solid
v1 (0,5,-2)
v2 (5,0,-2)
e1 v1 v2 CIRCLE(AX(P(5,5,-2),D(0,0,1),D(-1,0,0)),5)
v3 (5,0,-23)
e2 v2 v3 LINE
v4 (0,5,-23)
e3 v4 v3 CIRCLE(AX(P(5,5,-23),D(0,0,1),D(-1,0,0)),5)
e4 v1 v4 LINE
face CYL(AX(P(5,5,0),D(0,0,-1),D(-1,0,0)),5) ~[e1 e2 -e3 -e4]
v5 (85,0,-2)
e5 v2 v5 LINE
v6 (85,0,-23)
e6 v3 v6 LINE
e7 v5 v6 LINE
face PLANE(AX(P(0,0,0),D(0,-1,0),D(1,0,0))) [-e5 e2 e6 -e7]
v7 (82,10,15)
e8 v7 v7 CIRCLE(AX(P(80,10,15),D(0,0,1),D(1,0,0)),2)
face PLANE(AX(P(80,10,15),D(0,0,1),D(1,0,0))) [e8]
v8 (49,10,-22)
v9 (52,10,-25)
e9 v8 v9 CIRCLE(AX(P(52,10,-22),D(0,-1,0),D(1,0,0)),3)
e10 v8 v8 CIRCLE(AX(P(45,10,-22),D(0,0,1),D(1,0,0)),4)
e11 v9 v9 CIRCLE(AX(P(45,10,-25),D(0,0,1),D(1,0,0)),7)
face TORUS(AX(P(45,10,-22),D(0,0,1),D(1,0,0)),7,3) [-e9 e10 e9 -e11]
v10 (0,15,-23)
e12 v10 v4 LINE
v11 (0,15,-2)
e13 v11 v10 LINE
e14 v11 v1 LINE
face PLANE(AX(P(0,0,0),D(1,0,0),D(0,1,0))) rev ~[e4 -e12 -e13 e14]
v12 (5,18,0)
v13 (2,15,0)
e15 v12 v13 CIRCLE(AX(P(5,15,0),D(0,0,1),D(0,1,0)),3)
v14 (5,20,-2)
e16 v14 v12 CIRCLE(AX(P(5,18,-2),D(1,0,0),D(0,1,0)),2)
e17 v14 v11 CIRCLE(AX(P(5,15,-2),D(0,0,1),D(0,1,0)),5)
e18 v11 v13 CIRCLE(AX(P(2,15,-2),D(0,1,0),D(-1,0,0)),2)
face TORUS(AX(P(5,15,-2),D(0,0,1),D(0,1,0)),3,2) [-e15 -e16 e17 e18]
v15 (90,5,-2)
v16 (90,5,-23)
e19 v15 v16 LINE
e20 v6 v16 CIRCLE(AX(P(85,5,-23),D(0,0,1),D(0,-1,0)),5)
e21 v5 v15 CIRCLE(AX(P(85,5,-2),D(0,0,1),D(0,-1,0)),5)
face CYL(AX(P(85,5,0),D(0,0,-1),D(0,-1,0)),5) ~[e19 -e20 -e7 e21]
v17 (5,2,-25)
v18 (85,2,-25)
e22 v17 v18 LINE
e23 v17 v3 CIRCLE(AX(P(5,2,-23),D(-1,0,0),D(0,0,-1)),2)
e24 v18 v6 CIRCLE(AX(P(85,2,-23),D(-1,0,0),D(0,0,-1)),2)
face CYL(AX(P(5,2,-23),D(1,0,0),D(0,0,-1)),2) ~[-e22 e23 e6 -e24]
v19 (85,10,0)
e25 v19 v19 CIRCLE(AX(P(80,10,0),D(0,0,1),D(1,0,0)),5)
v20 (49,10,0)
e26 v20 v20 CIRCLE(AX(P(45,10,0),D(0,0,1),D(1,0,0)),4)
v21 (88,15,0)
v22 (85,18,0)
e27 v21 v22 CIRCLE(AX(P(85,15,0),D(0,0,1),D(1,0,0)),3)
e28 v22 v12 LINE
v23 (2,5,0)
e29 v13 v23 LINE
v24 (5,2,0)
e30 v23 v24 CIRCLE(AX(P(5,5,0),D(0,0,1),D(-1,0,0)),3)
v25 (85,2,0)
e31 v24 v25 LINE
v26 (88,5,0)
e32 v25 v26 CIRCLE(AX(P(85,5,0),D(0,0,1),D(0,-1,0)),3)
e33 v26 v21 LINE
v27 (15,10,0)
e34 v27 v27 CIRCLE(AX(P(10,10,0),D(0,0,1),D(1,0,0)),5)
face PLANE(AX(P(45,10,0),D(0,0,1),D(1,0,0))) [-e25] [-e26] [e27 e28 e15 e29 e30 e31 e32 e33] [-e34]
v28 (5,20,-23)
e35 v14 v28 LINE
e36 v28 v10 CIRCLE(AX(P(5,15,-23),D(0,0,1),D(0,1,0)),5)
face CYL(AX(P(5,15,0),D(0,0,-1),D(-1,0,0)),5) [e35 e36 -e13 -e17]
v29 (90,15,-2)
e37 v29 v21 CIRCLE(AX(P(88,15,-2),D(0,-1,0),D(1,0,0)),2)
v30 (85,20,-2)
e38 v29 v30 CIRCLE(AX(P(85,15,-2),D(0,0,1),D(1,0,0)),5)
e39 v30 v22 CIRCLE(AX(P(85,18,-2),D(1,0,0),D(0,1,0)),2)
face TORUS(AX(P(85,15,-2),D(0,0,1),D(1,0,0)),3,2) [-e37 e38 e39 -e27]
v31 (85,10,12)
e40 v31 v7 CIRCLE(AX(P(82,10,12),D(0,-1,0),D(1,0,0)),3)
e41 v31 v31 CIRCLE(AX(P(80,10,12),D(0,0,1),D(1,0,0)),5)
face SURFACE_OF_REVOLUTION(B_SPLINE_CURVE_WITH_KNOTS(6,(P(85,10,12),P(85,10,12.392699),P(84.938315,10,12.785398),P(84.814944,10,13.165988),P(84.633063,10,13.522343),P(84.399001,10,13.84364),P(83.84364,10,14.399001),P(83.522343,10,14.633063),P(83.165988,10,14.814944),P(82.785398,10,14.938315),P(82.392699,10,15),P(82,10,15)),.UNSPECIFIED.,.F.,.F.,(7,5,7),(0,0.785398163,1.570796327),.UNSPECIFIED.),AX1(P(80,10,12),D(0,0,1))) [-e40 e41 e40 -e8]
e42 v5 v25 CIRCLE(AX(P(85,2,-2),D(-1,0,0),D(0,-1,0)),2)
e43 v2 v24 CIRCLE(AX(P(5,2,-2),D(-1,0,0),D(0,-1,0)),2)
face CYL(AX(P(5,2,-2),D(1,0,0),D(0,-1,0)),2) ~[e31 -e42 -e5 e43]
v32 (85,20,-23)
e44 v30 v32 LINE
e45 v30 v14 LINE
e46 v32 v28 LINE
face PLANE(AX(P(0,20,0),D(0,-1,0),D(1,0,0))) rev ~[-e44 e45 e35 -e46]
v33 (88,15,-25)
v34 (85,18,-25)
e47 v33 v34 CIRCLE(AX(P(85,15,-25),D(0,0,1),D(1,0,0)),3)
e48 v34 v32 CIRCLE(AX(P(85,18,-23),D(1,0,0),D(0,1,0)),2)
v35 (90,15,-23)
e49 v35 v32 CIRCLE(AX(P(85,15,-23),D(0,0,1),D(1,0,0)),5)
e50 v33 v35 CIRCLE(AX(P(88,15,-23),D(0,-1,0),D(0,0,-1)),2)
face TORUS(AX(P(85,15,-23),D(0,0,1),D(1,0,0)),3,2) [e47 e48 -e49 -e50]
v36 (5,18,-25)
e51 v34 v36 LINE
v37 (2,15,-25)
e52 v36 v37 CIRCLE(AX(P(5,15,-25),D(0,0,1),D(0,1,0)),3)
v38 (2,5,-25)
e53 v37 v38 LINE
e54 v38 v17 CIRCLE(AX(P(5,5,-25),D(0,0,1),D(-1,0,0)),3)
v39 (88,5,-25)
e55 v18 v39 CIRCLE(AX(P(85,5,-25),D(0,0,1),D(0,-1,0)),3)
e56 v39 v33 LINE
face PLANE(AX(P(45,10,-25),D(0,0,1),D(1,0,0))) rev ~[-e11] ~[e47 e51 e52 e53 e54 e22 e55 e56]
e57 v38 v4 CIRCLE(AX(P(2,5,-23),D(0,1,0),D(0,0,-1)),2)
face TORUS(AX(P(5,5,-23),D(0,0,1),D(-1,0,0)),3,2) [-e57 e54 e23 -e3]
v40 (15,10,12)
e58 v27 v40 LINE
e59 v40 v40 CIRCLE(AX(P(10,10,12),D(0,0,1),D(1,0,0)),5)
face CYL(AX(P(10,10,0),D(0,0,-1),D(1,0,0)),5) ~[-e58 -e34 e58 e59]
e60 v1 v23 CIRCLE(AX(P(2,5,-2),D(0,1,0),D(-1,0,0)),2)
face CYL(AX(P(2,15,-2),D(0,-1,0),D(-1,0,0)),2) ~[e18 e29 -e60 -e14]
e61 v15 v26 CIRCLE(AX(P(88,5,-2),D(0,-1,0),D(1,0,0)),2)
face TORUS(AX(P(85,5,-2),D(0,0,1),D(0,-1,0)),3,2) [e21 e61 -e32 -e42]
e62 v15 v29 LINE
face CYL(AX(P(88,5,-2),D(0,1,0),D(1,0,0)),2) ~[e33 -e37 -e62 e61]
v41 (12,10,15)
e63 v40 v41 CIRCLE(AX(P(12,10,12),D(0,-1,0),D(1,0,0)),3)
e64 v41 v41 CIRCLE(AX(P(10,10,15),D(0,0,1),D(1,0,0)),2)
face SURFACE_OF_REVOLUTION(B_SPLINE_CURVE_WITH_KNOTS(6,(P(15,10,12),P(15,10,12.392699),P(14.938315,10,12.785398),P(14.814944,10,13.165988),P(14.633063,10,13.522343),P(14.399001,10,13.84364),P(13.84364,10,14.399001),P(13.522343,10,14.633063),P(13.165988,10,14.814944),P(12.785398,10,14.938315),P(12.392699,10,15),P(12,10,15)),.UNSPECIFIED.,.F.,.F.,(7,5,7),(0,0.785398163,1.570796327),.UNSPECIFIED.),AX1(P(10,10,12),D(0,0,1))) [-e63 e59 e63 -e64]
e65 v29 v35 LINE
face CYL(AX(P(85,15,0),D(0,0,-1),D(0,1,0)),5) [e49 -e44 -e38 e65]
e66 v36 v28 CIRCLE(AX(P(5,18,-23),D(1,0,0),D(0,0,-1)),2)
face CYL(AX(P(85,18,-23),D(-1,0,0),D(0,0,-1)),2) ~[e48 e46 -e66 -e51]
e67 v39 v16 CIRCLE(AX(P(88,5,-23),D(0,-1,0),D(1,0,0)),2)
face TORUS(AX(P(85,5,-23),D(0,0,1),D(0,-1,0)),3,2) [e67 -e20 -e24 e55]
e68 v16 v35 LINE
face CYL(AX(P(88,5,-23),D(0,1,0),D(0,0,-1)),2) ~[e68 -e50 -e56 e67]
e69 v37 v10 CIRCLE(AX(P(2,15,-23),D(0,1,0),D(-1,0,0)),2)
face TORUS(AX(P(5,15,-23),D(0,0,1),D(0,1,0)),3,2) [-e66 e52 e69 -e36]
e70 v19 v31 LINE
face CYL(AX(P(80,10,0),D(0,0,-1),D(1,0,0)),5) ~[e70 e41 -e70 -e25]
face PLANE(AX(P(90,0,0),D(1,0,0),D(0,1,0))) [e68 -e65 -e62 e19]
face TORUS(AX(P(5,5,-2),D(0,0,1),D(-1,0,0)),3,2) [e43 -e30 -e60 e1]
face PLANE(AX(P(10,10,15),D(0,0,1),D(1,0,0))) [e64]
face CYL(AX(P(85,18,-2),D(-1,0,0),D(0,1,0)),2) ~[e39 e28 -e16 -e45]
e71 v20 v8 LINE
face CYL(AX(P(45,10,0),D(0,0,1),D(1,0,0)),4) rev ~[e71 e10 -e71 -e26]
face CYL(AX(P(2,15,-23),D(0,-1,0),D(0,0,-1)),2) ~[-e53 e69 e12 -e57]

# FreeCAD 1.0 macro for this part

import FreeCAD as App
import Part
import Sketcher
from FreeCAD import Vector


def edges_at(feature, points):
    """Names of the edges that pass closest to the given points."""
    edges = feature.Shape.Edges
    near = lambda p: min(range(len(edges)), key=lambda i: edges[i].distToShape(Part.Vertex(*p))[0])
    return sorted({f"Edge{near(p) + 1}" for p in points})

doc = App.newDocument("Part")
params = doc.addObject("Spreadsheet::Sheet", "Params")
for row, (alias, value) in enumerate([
    ("sketch1_width", "90 mm"),
    ("sketch1_height", "20 mm"),
    ("pad1_length", "25 mm"),
    ("sketch2_diameter", "10 mm"),
    ("pad2_length", "15 mm"),
    ("sketch3_diameter", "8 mm"),
    ("fillet_radius", "5 mm"),
    ("fillet2_radius", "3 mm"),
    ("fillet3_radius", "3 mm"),
    ("fillet4_radius", "2 mm"),
    ("fillet5_radius", "2 mm"),
], start=1):
    params.set(f"A{row}", alias)
    params.set(f"B{row}", "=" + value)
    params.setAlias(f"B{row}", alias)

body = doc.addObject("PartDesign::Body", "Body")

sketch1 = body.newObject("Sketcher::SketchObject", "Sketch")
sketch1.AttachmentSupport = (doc.getObject("XY_Plane"), [""])
sketch1.MapMode = "FlatFace"
sketch1.addGeometry(Part.LineSegment(Vector(0, 20, 0), Vector(0, 0, 0)), False)
sketch1.addGeometry(Part.LineSegment(Vector(0, 0, 0), Vector(90, 0, 0)), False)
sketch1.addGeometry(Part.LineSegment(Vector(90, 0, 0), Vector(90, 20, 0)), False)
sketch1.addGeometry(Part.LineSegment(Vector(90, 20, 0), Vector(0, 20, 0)), False)
sketch1.addConstraint(Sketcher.Constraint("Coincident", 0, 2, 1, 1))
sketch1.addConstraint(Sketcher.Constraint("Coincident", 1, 2, 2, 1))
sketch1.addConstraint(Sketcher.Constraint("Coincident", 2, 2, 3, 1))
sketch1.addConstraint(Sketcher.Constraint("Coincident", 3, 2, 0, 1))
sketch1.addConstraint(Sketcher.Constraint("Vertical", 0))
sketch1.addConstraint(Sketcher.Constraint("Horizontal", 1))
sketch1.addConstraint(Sketcher.Constraint("Vertical", 2))
sketch1.addConstraint(Sketcher.Constraint("Horizontal", 3))
sketch1.addConstraint(Sketcher.Constraint("Coincident", 0, 2, -1, 1))
sketch1.addConstraint(Sketcher.Constraint("DistanceX", 1, 1, 1, 2, 90.0))
sketch1.addConstraint(Sketcher.Constraint("DistanceY", 0, 2, 0, 1, 20.0))
sketch1.setExpression("Constraints[9]", "Params.sketch1_width")
sketch1.setExpression("Constraints[10]", "Params.sketch1_height")
pad1 = body.newObject("PartDesign::Pad", "Pad")
pad1.Profile = sketch1
pad1.setExpression("Length", "Params.pad1_length")
pad1.Reversed = True

sketch2 = body.newObject("Sketcher::SketchObject", "Sketch001")
sketch2.AttachmentSupport = (doc.getObject("XY_Plane"), [""])
sketch2.MapMode = "FlatFace"
sketch2.addGeometry(Part.Circle(Vector(10, 10, 0), Vector(0, 0, 1), 5), False)
sketch2.addGeometry(Part.Circle(Vector(80, 10, 0), Vector(0, 0, 1), 5), False)
sketch2.addConstraint(Sketcher.Constraint("Equal", 0, 1))
sketch2.addConstraint(Sketcher.Constraint("Horizontal", 0, 3, 1, 3))
sketch2.addConstraint(Sketcher.Constraint("Diameter", 0, 10.0))
sketch2.addConstraint(Sketcher.Constraint("DistanceX", -1, 1, 0, 3, 10.0))
sketch2.addConstraint(Sketcher.Constraint("DistanceY", -1, 1, 0, 3, 10.0))
sketch2.addConstraint(Sketcher.Constraint("DistanceX", -1, 1, 1, 3, 80.0))
sketch2.setExpression("Constraints[2]", "Params.sketch2_diameter")
pad2 = body.newObject("PartDesign::Pad", "Pad001")
pad2.Profile = sketch2
pad2.setExpression("Length", "Params.pad2_length")

sketch3 = body.newObject("Sketcher::SketchObject", "Sketch002")
sketch3.AttachmentSupport = (doc.getObject("XY_Plane"), [""])
sketch3.MapMode = "FlatFace"
sketch3.addGeometry(Part.Circle(Vector(45, 10, 0), Vector(0, 0, 1), 4), False)
sketch3.addConstraint(Sketcher.Constraint("Diameter", 0, 8.0))
sketch3.addConstraint(Sketcher.Constraint("DistanceX", -1, 1, 0, 3, 45.0))
sketch3.addConstraint(Sketcher.Constraint("DistanceY", -1, 1, 0, 3, 10.0))
sketch3.setExpression("Constraints[0]", "Params.sketch3_diameter")
pocket1 = body.newObject("PartDesign::Pocket", "Pocket")
pocket1.Profile = sketch3
pocket1.Type = "ThroughAll"
doc.recompute()

fillet = body.newObject("PartDesign::Fillet", "Fillet")
fillet.Base = (pocket1, edges_at(pocket1, [
    (0, 0, -12.5),
    (0, 20, -12.5),
    (90, 0, -12.5),
    (90, 20, -12.5),
]))
fillet.setExpression("Radius", "Params.fillet_radius")
doc.recompute()

fillet2 = body.newObject("PartDesign::Fillet", "Fillet001")
fillet2.Base = (fillet, edges_at(fillet, [(5, 10, 15), (75, 10, 15)]))
fillet2.setExpression("Radius", "Params.fillet2_radius")
doc.recompute()

fillet3 = body.newObject("PartDesign::Fillet", "Fillet002")
fillet3.Base = (fillet2, edges_at(fillet2, [(41, 10, -25)]))
fillet3.setExpression("Radius", "Params.fillet3_radius")
doc.recompute()

fillet4 = body.newObject("PartDesign::Fillet", "Fillet003")
fillet4.Base = (fillet3, edges_at(fillet3, [(45, 0, -25)]))
fillet4.setExpression("Radius", "Params.fillet4_radius")
doc.recompute()

fillet5 = body.newObject("PartDesign::Fillet", "Fillet004")
fillet5.Base = (fillet4, edges_at(fillet4, [(45, 0, 0)]))
fillet5.setExpression("Radius", "Params.fillet5_radius")

doc.recompute()
